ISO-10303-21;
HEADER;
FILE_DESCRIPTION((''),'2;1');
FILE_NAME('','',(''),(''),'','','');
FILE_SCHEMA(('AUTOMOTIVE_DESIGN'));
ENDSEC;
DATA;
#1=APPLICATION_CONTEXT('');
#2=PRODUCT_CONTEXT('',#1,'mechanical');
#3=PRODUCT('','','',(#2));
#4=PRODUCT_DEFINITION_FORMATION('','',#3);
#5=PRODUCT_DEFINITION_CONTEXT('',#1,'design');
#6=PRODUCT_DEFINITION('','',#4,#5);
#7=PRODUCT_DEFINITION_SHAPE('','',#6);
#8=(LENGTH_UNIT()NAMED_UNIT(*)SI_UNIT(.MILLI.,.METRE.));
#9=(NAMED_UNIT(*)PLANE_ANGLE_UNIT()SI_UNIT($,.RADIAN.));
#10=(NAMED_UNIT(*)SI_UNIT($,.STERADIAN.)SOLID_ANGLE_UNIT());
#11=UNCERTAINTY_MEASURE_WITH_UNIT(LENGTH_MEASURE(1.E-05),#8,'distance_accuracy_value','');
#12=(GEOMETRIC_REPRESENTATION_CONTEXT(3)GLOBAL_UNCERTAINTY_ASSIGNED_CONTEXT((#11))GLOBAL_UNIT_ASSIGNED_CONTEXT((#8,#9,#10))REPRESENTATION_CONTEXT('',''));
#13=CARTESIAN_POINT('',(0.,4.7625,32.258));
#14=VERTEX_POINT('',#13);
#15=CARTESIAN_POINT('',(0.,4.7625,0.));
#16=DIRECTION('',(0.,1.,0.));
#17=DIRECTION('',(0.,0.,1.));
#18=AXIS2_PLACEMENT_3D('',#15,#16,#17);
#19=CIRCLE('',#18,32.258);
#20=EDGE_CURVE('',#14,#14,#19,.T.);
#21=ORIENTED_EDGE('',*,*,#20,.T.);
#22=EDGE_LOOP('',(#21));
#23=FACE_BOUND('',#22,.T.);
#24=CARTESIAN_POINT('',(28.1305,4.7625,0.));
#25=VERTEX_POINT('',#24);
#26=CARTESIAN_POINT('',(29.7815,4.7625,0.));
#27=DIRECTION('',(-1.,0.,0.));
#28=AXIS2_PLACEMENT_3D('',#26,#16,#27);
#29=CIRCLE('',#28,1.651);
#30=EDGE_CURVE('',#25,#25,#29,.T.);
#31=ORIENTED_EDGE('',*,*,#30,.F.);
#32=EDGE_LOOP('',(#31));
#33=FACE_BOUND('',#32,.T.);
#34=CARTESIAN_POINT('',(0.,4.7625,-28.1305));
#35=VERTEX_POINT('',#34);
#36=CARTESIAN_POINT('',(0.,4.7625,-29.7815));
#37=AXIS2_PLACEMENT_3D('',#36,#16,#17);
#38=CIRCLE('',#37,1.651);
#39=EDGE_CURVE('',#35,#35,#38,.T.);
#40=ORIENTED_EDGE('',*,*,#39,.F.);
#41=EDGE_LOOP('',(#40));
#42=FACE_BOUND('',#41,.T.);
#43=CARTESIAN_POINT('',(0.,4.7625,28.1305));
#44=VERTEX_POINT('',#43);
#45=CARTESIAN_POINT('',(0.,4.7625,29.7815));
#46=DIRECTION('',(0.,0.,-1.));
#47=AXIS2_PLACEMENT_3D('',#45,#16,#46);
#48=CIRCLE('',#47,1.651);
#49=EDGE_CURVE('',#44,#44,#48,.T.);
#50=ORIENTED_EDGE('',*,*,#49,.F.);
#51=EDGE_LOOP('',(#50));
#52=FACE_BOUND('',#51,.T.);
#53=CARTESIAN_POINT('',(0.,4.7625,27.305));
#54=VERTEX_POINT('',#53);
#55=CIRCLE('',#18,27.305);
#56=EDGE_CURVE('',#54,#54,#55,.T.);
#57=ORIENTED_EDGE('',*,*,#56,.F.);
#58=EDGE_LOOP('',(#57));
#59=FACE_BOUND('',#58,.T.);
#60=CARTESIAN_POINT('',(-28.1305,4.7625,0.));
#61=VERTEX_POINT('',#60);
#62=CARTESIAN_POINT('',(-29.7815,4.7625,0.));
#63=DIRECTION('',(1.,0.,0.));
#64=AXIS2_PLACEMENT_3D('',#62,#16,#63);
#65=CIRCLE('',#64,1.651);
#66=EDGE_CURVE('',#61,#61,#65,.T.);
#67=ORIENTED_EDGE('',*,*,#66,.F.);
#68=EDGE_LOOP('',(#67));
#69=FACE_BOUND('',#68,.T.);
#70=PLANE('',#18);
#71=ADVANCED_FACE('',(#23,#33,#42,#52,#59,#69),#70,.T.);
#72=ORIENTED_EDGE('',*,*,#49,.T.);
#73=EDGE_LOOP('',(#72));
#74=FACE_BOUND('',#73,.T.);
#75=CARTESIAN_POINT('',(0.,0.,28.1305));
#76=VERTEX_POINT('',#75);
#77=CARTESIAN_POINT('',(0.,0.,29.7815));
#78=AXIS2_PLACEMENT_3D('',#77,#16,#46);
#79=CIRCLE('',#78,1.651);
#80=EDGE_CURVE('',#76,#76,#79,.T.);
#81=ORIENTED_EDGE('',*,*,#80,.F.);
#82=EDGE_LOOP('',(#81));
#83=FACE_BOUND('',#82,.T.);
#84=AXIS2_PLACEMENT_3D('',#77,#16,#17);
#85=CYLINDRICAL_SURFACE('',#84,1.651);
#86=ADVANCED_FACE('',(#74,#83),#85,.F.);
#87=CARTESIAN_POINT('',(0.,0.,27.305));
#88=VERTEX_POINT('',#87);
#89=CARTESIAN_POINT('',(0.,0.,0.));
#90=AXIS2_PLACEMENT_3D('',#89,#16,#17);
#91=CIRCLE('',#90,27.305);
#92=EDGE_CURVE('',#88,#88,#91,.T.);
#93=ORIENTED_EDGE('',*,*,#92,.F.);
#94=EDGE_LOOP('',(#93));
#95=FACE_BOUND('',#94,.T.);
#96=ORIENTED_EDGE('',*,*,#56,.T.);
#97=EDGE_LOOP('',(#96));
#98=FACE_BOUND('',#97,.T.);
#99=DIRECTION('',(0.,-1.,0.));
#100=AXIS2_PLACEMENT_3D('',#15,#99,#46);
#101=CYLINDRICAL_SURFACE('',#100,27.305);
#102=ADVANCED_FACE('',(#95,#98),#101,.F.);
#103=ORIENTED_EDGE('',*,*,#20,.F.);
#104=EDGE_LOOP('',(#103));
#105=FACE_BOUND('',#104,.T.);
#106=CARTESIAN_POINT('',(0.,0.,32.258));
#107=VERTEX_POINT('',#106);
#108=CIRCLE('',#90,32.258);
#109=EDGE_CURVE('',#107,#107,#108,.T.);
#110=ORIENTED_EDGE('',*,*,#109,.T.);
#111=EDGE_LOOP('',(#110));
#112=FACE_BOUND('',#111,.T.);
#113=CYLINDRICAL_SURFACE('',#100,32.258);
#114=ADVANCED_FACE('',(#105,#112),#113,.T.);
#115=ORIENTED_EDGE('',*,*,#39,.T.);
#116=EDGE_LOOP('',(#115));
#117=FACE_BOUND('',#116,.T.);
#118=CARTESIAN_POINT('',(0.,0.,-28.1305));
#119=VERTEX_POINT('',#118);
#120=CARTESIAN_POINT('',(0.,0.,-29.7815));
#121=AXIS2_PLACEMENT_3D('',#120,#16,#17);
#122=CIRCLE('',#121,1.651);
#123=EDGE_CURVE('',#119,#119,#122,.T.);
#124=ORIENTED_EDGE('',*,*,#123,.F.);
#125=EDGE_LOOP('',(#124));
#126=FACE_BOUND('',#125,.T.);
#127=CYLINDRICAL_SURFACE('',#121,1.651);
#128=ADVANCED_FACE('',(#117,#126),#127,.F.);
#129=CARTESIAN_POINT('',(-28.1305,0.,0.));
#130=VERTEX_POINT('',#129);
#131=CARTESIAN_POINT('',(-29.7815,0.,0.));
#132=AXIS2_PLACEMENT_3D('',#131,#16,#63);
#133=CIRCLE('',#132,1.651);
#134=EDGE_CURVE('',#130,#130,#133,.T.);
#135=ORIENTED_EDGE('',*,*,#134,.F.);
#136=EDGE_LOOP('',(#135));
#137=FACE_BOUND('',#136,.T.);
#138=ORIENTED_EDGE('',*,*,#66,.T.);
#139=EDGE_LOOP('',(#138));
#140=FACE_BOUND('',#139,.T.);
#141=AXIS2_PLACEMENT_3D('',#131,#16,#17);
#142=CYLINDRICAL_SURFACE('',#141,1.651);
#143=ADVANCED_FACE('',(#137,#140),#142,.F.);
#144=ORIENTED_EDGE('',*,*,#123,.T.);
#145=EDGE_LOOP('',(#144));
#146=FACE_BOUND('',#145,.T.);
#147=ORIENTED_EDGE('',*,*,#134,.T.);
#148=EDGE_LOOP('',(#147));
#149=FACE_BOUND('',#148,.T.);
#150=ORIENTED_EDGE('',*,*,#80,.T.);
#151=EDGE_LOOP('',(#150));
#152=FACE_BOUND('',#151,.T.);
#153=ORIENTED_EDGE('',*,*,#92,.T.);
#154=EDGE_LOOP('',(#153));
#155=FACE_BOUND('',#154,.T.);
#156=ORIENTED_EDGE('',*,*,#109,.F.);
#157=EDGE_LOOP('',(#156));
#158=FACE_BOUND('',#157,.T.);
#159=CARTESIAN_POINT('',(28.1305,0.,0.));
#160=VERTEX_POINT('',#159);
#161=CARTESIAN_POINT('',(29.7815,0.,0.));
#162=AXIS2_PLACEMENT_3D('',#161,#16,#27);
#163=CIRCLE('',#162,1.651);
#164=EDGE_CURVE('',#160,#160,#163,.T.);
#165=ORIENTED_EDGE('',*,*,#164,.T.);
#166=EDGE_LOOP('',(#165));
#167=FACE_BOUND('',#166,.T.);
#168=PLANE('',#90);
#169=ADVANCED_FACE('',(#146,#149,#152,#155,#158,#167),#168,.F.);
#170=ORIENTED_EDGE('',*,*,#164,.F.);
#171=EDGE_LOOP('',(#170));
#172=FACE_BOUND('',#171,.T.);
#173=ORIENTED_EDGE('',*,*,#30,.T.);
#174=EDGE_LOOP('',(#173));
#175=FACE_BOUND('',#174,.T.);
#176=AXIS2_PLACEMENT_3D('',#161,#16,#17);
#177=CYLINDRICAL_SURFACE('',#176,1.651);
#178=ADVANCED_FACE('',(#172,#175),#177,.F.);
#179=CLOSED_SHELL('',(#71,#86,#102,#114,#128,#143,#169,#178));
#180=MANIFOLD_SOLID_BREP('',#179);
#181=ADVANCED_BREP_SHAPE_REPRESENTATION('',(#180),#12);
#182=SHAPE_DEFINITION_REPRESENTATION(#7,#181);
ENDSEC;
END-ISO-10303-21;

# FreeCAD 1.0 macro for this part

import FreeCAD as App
import Part
import Sketcher

V = App.Vector
Q = App.Units.Quantity

doc = App.newDocument("Part")
params = doc.addObject("Spreadsheet::Sheet", "Params")
for row, (alias, value) in enumerate([
    ("sketch1_diameter", "2.54 in"),
    ("sketch1_diameter2", "2.15 in"),
    ("pad1_length", "0.1875 in"),
    ("sketch2_diameter", "0.13 in"),
], start=1):
    params.set(f"A{row}", alias)
    params.set(f"B{row}", "=" + value)
    params.setAlias(f"B{row}", alias)

body = doc.addObject("PartDesign::Body", "Body")

sketch1 = body.newObject("Sketcher::SketchObject", "Sketch")
sketch1.AttachmentSupport = (doc.getObject("XZ_Plane"), [""])
sketch1.MapMode = "FlatFace"
sketch1.addGeometry([
    Part.Circle(V(0, 0, 0), V(0, 0, 1), 32),
    Part.Circle(V(0, 0, 0), V(0, 0, 1), 27),
], False)
sketch1.addConstraint([
    Sketcher.Constraint("Coincident", 0, 3, -1, 1),
    Sketcher.Constraint("Coincident", 1, 3, -1, 1),
    Sketcher.Constraint("Diameter", 0, Q("2.54 in")),
    Sketcher.Constraint("Diameter", 1, Q("2.15 in")),
])
sketch1.setExpression("Constraints[2]", "Params.sketch1_diameter")
sketch1.setExpression("Constraints[3]", "Params.sketch1_diameter2")
pad1 = body.newObject("PartDesign::Pad", "Pad")
pad1.Profile = sketch1
pad1.setExpression("Length", "Params.pad1_length")
pad1.Reversed = True

sketch2 = body.newObject("Sketcher::SketchObject", "Sketch001")
sketch2.AttachmentSupport = (doc.getObject("XZ_Plane"), [""])
sketch2.MapMode = "FlatFace"
sketch2.AttachmentOffset = App.Placement(V(0, 0, -0.1875 * 25.4), App.Rotation())
sketch2.addGeometry(Part.Circle(V(0, -29.8, 0), V(0, 0, 1), 1.7), False)
sketch2.addConstraint([
    Sketcher.Constraint("PointOnObject", 0, 3, -2),
    Sketcher.Constraint("Diameter", 0, Q("0.13 in")),
    Sketcher.Constraint("DistanceY", 0, 3, -1, 1, Q("1.1725 in")),
])
sketch2.setExpression("Constraints[1]", "Params.sketch2_diameter")
pocket1 = body.newObject("PartDesign::Pocket", "Pocket")
pocket1.Profile = sketch2
pocket1.Type = "ThroughAll"
pocket1.Reversed = True
doc.recompute()

polarpattern = body.newObject("PartDesign::PolarPattern", "PolarPattern")
polarpattern.Originals = [pocket1]
polarpattern.Axis = (doc.getObject("Y_Axis"), [""])
polarpattern.Angle = 360
polarpattern.Occurrences = 4
body.Tip = polarpattern

doc.recompute()
